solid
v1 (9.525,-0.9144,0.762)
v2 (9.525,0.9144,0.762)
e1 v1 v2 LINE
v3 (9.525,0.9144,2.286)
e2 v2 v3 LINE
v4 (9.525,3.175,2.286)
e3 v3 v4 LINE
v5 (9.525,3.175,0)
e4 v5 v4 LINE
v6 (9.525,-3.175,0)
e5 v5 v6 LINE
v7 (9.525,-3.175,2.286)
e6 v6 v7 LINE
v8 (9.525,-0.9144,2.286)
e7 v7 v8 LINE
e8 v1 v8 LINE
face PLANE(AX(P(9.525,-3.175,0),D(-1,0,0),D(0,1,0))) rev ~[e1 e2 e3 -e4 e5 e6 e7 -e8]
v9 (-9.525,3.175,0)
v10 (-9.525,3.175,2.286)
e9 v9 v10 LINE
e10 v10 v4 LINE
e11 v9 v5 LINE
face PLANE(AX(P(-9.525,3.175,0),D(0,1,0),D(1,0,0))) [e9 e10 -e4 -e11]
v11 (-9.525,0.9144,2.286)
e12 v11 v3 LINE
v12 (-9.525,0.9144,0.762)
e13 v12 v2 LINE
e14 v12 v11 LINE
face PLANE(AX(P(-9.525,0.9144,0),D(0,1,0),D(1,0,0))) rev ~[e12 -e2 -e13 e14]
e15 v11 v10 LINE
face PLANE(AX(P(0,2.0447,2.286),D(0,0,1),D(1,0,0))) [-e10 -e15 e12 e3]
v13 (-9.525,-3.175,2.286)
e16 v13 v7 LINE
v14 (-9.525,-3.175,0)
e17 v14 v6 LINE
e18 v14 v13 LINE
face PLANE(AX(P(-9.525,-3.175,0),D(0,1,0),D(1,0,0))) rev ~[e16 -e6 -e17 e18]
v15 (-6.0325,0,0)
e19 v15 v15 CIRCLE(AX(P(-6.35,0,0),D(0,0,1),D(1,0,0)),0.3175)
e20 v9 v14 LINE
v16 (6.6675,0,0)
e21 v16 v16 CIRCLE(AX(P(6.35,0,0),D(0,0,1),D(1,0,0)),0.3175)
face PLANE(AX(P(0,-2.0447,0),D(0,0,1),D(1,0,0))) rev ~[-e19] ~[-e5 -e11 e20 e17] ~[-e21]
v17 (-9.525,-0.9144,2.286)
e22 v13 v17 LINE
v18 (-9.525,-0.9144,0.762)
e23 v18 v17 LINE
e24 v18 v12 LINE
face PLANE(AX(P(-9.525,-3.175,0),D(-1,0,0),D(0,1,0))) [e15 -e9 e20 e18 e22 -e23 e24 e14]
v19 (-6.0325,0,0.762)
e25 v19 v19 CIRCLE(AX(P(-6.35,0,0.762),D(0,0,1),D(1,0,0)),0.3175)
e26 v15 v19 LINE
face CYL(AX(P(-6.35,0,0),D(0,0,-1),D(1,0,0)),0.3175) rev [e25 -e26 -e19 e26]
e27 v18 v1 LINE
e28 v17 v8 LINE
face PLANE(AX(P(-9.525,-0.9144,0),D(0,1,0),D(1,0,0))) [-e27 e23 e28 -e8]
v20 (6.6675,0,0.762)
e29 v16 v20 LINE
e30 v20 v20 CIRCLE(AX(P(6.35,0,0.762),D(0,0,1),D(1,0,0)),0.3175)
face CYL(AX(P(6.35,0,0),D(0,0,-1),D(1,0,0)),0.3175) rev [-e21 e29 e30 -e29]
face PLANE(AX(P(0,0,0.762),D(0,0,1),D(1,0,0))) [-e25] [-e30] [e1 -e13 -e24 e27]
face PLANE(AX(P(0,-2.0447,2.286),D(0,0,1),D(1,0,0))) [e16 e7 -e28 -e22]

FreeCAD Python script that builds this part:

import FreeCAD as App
import Part
import Sketcher

V = App.Vector
Q = App.Units.Quantity


def add_polygon(sketch, points):
    """Adds a closed chain of lines whose ends are joined by coincident constraints."""
    first, n = sketch.GeometryCount, len(points)
    for a, b in zip(points, points[1:] + points[:1]):
        sketch.addGeometry(Part.LineSegment(App.Vector(*a, 0), App.Vector(*b, 0)), False)
    for i in range(n):
        sketch.addConstraint(Sketcher.Constraint("Coincident", first + i, 2, first + (i + 1) % n, 1))

doc = App.newDocument("Part")
body = doc.addObject("PartDesign::Body", "Body")

sketch1 = body.newObject("Sketcher::SketchObject", "Sketch")
sketch1.AttachmentSupport = (doc.getObject("XY_Plane"), [""])
sketch1.MapMode = "FlatFace"
add_polygon(sketch1, [(-9.525, 0.9144), (-9.525, -0.9144), (9.525, -0.9144), (9.525, 0.9144)])
sketch1.addGeometry(Part.Circle(V(-6.35, 0, 0), V(0, 0, 1), 0.3175), False)
sketch1.addGeometry(Part.Circle(V(6.35, 0, 0), V(0, 0, 1), 0.3175), False)
sketch1.addConstraint(Sketcher.Constraint("Vertical", 0))
sketch1.addConstraint(Sketcher.Constraint("Horizontal", 1))
sketch1.addConstraint(Sketcher.Constraint("Vertical", 2))
sketch1.addConstraint(Sketcher.Constraint("Horizontal", 3))
sketch1.addConstraint(Sketcher.Constraint("Equal", 4, 5))
sketch1.addConstraint(Sketcher.Constraint("Symmetric", 4, 3, 5, 3, -1, 1))
sketch1.addConstraint(Sketcher.Constraint("Symmetric", 0, 2, 2, 2, -1, 1))
sketch1.addConstraint(Sketcher.Constraint("PointOnObject", 4, 3, -1))
sketch1.addConstraint(Sketcher.Constraint("Diameter", 4, Q("0.025 in")))
sketch1.addConstraint(Sketcher.Constraint("DistanceX", 1, 1, 1, 2, Q("0.75 in")))
sketch1.addConstraint(Sketcher.Constraint("DistanceX", 4, 3, 5, 3, Q("0.5 in")))
sketch1.addConstraint(Sketcher.Constraint("DistanceY", 0, 2, 0, 1, Q("0.072 in")))
pad1 = body.newObject("PartDesign::Pad", "Pad")
pad1.Profile = sketch1
pad1.Length = Q("0.03 in")

sketch2 = body.newObject("Sketcher::SketchObject", "Sketch001")
sketch2.AttachmentSupport = (doc.getObject("XY_Plane"), [""])
sketch2.MapMode = "FlatFace"
add_polygon(sketch2, [(-9.525, -0.9144), (-9.525, -3.175), (9.525, -3.175), (9.525, -0.9144)])
add_polygon(sketch2, [(-9.525, 3.175), (-9.525, 0.9144), (9.525, 0.9144), (9.525, 3.175)])
sketch2.addConstraint(Sketcher.Constraint("Vertical", 0))
sketch2.addConstraint(Sketcher.Constraint("Horizontal", 1))
sketch2.addConstraint(Sketcher.Constraint("Vertical", 2))
sketch2.addConstraint(Sketcher.Constraint("Horizontal", 3))
sketch2.addConstraint(Sketcher.Constraint("Vertical", 4))
sketch2.addConstraint(Sketcher.Constraint("Horizontal", 5))
sketch2.addConstraint(Sketcher.Constraint("Vertical", 6))
sketch2.addConstraint(Sketcher.Constraint("Horizontal", 7))
sketch2.addConstraint(Sketcher.Constraint("Symmetric", 2, 2, 4, 2, -1, 1))
sketch2.addConstraint(Sketcher.Constraint("Symmetric", 0, 2, 6, 2, -1, 1))
sketch2.addConstraint(Sketcher.Constraint("Vertical", 3, 2, 4, 2))
sketch2.addConstraint(Sketcher.Constraint("DistanceX", 1, 1, 1, 2, Q("0.75 in")))
sketch2.addConstraint(Sketcher.Constraint("DistanceY", 0, 2, 0, 1, Q("0.089 in")))
sketch2.addConstraint(Sketcher.Constraint("DistanceY", 1, 2, 6, 2, Q("0.25 in")))
pad2 = body.newObject("PartDesign::Pad", "Pad001")
pad2.Profile = sketch2
pad2.Length = Q("0.09 in")

doc.recompute()
